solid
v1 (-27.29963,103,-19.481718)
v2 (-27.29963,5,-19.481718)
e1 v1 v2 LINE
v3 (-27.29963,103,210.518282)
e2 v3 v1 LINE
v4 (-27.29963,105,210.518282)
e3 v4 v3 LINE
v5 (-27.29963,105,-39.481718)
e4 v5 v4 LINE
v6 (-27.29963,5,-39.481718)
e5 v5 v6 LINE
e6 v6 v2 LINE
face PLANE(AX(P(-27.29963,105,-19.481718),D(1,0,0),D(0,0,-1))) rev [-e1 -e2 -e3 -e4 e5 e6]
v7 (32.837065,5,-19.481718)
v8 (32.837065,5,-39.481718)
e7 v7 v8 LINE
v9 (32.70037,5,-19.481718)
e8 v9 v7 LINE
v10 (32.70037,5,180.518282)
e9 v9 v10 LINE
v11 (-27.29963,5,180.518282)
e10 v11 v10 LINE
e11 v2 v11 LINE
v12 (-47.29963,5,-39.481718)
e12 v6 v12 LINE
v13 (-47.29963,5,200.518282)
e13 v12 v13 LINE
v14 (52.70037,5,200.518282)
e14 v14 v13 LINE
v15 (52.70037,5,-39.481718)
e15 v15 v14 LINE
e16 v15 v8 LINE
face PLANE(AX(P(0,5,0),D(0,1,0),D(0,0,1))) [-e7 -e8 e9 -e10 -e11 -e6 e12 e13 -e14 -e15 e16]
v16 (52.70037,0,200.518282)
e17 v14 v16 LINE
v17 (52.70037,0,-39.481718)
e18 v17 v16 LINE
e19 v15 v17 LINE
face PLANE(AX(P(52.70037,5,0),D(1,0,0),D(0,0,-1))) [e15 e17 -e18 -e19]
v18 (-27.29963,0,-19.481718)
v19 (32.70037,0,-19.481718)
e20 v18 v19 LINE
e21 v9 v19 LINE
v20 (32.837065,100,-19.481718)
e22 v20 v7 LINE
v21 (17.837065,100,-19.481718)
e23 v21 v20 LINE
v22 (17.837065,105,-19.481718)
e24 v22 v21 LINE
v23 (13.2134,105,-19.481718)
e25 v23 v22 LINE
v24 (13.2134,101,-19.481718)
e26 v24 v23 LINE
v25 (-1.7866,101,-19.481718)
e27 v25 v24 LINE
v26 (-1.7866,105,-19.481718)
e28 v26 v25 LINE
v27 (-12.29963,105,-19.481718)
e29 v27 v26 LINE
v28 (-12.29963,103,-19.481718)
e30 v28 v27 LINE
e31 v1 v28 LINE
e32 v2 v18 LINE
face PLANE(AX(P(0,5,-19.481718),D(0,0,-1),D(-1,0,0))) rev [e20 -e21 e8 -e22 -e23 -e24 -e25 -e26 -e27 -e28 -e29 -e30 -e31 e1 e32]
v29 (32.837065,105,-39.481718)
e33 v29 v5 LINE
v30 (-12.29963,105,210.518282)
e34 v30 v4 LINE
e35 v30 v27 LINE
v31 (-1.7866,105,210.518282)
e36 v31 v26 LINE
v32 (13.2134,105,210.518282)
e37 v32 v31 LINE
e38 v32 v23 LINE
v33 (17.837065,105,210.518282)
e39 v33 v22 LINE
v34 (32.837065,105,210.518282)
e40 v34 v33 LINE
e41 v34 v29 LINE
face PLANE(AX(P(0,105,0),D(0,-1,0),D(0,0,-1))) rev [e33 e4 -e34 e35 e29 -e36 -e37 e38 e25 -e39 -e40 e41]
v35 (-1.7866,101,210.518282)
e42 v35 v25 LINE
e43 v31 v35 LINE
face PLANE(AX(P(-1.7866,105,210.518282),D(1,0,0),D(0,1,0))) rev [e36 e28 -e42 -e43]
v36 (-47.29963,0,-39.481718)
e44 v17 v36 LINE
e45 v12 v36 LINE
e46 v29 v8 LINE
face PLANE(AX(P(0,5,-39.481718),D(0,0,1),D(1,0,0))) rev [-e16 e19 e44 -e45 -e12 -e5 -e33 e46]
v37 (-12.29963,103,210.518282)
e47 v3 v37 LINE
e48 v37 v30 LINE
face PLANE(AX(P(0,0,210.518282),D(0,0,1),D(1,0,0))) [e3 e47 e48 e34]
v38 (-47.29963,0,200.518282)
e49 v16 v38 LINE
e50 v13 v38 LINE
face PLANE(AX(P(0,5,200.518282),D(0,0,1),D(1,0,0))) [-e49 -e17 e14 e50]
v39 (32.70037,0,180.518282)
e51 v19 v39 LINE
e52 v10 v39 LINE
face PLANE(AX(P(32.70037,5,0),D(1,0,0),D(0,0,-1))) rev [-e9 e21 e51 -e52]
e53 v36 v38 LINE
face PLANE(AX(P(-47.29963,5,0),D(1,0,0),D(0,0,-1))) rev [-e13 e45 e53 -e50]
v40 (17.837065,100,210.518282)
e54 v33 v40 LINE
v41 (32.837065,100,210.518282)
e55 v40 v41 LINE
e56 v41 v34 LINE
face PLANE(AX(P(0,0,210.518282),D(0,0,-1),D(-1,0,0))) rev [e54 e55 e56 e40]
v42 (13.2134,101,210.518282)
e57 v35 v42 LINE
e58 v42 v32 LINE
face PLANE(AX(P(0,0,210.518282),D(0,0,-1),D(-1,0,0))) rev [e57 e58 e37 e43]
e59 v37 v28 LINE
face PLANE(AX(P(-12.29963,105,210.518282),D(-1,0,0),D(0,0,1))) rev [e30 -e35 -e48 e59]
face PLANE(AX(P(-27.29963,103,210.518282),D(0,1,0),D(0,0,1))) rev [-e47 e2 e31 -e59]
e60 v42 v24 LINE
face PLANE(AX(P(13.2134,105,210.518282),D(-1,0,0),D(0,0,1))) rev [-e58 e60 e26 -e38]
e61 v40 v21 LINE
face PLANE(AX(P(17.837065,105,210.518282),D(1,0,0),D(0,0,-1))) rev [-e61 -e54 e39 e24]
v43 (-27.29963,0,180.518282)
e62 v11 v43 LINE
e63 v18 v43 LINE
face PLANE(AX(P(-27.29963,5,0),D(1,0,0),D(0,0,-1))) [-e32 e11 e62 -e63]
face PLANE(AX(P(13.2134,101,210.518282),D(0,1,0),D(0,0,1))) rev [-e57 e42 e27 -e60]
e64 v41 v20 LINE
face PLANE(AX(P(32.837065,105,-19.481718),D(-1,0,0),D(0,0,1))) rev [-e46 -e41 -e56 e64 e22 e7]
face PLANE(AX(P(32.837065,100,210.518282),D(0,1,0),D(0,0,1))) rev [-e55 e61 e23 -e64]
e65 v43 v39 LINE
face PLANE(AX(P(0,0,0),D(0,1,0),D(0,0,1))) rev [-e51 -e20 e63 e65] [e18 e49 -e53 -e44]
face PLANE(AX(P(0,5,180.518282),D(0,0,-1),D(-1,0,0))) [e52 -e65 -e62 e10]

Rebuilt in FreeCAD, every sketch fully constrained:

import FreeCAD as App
import Part
import Sketcher
Q = App.Units.Quantity

doc = App.newDocument("Part")
body = doc.addObject("PartDesign::Body", "Body")

# Sketch on XZ plane
sketch1 = doc.addObject("Sketcher::SketchObject", "Sketch")
body.addObject(sketch1)
sketch1.AttachmentSupport = (doc.XZ_Plane, [""])
sketch1.MapMode = "FlatFace"
sketch1.addGeometry([
    Part.LineSegment(App.Vector(-47, -39, 0), App.Vector(-47, 201, 0)),  # 0
    Part.LineSegment(App.Vector(-47, 201, 0), App.Vector(53, 201, 0)),  # 1
    Part.LineSegment(App.Vector(53, 201, 0), App.Vector(53, -39, 0)),  # 2
    Part.LineSegment(App.Vector(53, -39, 0), App.Vector(-47, -39, 0)),  # 3
    Part.LineSegment(App.Vector(33, 181, 0), App.Vector(-27, 181, 0)),  # 4
    Part.LineSegment(App.Vector(-27, 181, 0), App.Vector(-27, -19, 0)),  # 5
    Part.LineSegment(App.Vector(-27, -19, 0), App.Vector(33, -19, 0)),  # 6
    Part.LineSegment(App.Vector(33, -19, 0), App.Vector(33, 181, 0)),  # 7
], False)
sketch1.addConstraint([
    Sketcher.Constraint("Coincident", 0, 2, 1, 1),
    Sketcher.Constraint("Coincident", 1, 2, 2, 1),
    Sketcher.Constraint("Coincident", 2, 2, 3, 1),
    Sketcher.Constraint("Coincident", 3, 2, 0, 1),
    Sketcher.Constraint("Coincident", 4, 2, 5, 1),
    Sketcher.Constraint("Coincident", 5, 2, 6, 1),
    Sketcher.Constraint("Coincident", 6, 2, 7, 1),
    Sketcher.Constraint("Coincident", 7, 2, 4, 1),
    Sketcher.Constraint("Vertical", 0),
    Sketcher.Constraint("Horizontal", 1),
    Sketcher.Constraint("Vertical", 2),
    Sketcher.Constraint("Horizontal", 3),
    Sketcher.Constraint("Horizontal", 4),
    Sketcher.Constraint("Vertical", 5),
    Sketcher.Constraint("Horizontal", 6),
    Sketcher.Constraint("Vertical", 7),
    Sketcher.Constraint("DistanceX", 1, 1, 1, 2, Q("100 mm")),
    Sketcher.Constraint("DistanceX", 4, 2, 4, 1, Q("60 mm")),
    Sketcher.Constraint("DistanceY", 0, 1, 0, 2, Q("240 mm")),
    Sketcher.Constraint("DistanceY", 5, 2, 5, 1, Q("200 mm")),
    Sketcher.Constraint("DistanceX", 0, 2, 4, 2, Q("20 mm")),
    Sketcher.Constraint("DistanceY", 4, 2, 0, 2, Q("20 mm")),
    Sketcher.Constraint("DistanceX", 0, 2, -1, 1, Q("47.29963 mm")),
    Sketcher.Constraint("DistanceY", -1, 1, 0, 2, Q("200.518282 mm")),
])
pad1 = doc.addObject("PartDesign::Pad", "Pad")
body.addObject(pad1)
pad1.Profile = sketch1
pad1.Length = 5
pad1.Reversed = True

# Sketch on XZ plane
sketch2 = doc.addObject("Sketcher::SketchObject", "Sketch001")
body.addObject(sketch2)
sketch2.AttachmentSupport = (doc.XZ_Plane, [""])
sketch2.MapMode = "FlatFace"
sketch2.AttachmentOffset = App.Placement(App.Vector(0, 0, -5), App.Rotation())
sketch2.addGeometry([
    Part.LineSegment(App.Vector(-27, -39, 0), App.Vector(-27, -19, 0)),
    Part.LineSegment(App.Vector(-27, -19, 0), App.Vector(33, -19, 0)),
    Part.LineSegment(App.Vector(33, -19, 0), App.Vector(33, -39, 0)),
    Part.LineSegment(App.Vector(33, -39, 0), App.Vector(-27, -39, 0)),
], False)
sketch2.addConstraint([
    Sketcher.Constraint("Coincident", 0, 2, 1, 1),
    Sketcher.Constraint("Coincident", 1, 2, 2, 1),
    Sketcher.Constraint("Coincident", 2, 2, 3, 1),
    Sketcher.Constraint("Coincident", 3, 2, 0, 1),
    Sketcher.Constraint("Vertical", 0),
    Sketcher.Constraint("Horizontal", 1),
    Sketcher.Constraint("Vertical", 2),
    Sketcher.Constraint("Horizontal", 3),
    Sketcher.Constraint("DistanceY", 0, 1, 0, 2, Q("20 mm")),
    Sketcher.Constraint("DistanceX", 1, 1, 1, 2, Q("60.136695 mm")),
    Sketcher.Constraint("DistanceX", 0, 2, -1, 1, Q("27.29963 mm")),
    Sketcher.Constraint("DistanceY", 0, 2, -1, 1, Q("19.481718 mm")),
])
pad2 = doc.addObject("PartDesign::Pad", "Pad001")
body.addObject(pad2)
pad2.Profile = sketch2
pad2.Length = 100
pad2.Reversed = True

# Sketch on XY plane
sketch3 = doc.addObject("Sketcher::SketchObject", "Sketch002")
body.addObject(sketch3)
sketch3.AttachmentSupport = (doc.XY_Plane, [""])
sketch3.MapMode = "FlatFace"
sketch3.AttachmentOffset = App.Placement(App.Vector(0, 0, -19.481718), App.Rotation())
sketch3.addGeometry([
    Part.LineSegment(App.Vector(-27.3, 105, 0), App.Vector(-27.3, 103, 0)),  # 0
    Part.LineSegment(App.Vector(-27.3, 103, 0), App.Vector(-12.3, 103, 0)),  # 1
    Part.LineSegment(App.Vector(-12.3, 103, 0), App.Vector(-12.3, 105, 0)),  # 2
    Part.LineSegment(App.Vector(-12.3, 105, 0), App.Vector(-27.3, 105, 0)),  # 3
    Part.LineSegment(App.Vector(17.8, 105, 0), App.Vector(17.8, 100, 0)),  # 4
    Part.LineSegment(App.Vector(17.8, 100, 0), App.Vector(32.8, 100, 0)),  # 5
    Part.LineSegment(App.Vector(32.8, 100, 0), App.Vector(32.8, 105, 0)),  # 6
    Part.LineSegment(App.Vector(32.8, 105, 0), App.Vector(17.8, 105, 0)),  # 7
    Part.LineSegment(App.Vector(-1.8, 105, 0), App.Vector(-1.8, 101, 0)),  # 8
    Part.LineSegment(App.Vector(-1.8, 101, 0), App.Vector(13.2, 101, 0)),  # 9
    Part.LineSegment(App.Vector(13.2, 101, 0), App.Vector(13.2, 105, 0)),  # 10
    Part.LineSegment(App.Vector(13.2, 105, 0), App.Vector(-1.8, 105, 0)),  # 11
], False)
sketch3.addConstraint([
    Sketcher.Constraint("Coincident", 0, 2, 1, 1),
    Sketcher.Constraint("Coincident", 1, 2, 2, 1),
    Sketcher.Constraint("Coincident", 2, 2, 3, 1),
    Sketcher.Constraint("Coincident", 3, 2, 0, 1),
    Sketcher.Constraint("Coincident", 4, 2, 5, 1),
    Sketcher.Constraint("Coincident", 5, 2, 6, 1),
    Sketcher.Constraint("Coincident", 6, 2, 7, 1),
    Sketcher.Constraint("Coincident", 7, 2, 4, 1),
    Sketcher.Constraint("Coincident", 8, 2, 9, 1),
    Sketcher.Constraint("Coincident", 9, 2, 10, 1),
    Sketcher.Constraint("Coincident", 10, 2, 11, 1),
    Sketcher.Constraint("Coincident", 11, 2, 8, 1),
    Sketcher.Constraint("Vertical", 0),
    Sketcher.Constraint("Horizontal", 1),
    Sketcher.Constraint("Vertical", 2),
    Sketcher.Constraint("Horizontal", 3),
    Sketcher.Constraint("Vertical", 4),
    Sketcher.Constraint("Horizontal", 5),
    Sketcher.Constraint("Vertical", 6),
    Sketcher.Constraint("Horizontal", 7),
    Sketcher.Constraint("Vertical", 8),
    Sketcher.Constraint("Horizontal", 9),
    Sketcher.Constraint("Vertical", 10),
    Sketcher.Constraint("Horizontal", 11),
    Sketcher.Constraint("Horizontal", 3, 2, 6, 2),
    Sketcher.Constraint("Horizontal", 7, 2, 10, 2),
    Sketcher.Constraint("Equal", 3, 5),
    Sketcher.Constraint("Equal", 7, 9),
    Sketcher.Constraint("DistanceX", 1, 1, 1, 2, Q("15 mm")),
    Sketcher.Constraint("DistanceY", 0, 2, 0, 1, Q("2 mm")),
    Sketcher.Constraint("DistanceY", 4, 2, 4, 1, Q("5 mm")),
    Sketcher.Constraint("DistanceY", 8, 2, 8, 1, Q("4 mm")),
    Sketcher.Constraint("DistanceY", -1, 1, 0, 2, Q("103 mm")),
    Sketcher.Constraint("DistanceX", 8, 2, -1, 1, Q("1.7866 mm")),
    Sketcher.Constraint("DistanceX", 0, 2, -1, 1, Q("27.29963 mm")),
    Sketcher.Constraint("DistanceX", -1, 1, 4, 2, Q("17.837065 mm")),
])
pad3 = doc.addObject("PartDesign::Pad", "Pad002")
body.addObject(pad3)
pad3.Profile = sketch3
pad3.Length = 230

doc.recompute()
